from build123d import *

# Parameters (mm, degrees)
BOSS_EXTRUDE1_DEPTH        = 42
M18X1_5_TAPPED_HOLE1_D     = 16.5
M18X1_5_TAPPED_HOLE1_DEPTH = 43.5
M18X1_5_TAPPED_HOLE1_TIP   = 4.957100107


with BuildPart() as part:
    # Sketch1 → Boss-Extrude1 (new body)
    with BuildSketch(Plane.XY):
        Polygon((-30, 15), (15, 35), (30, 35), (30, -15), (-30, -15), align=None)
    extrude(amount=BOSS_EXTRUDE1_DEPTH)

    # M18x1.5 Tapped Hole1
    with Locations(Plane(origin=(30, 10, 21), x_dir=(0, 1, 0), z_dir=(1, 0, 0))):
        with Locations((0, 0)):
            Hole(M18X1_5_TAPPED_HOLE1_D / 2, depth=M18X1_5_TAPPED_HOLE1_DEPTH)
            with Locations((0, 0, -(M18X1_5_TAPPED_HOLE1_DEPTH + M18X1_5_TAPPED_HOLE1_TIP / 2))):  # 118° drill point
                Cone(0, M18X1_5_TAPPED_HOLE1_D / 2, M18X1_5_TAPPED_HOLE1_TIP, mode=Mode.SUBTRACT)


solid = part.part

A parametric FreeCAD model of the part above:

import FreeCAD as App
import Part
import Sketcher
from FreeCAD import Vector
Q = App.Units.Quantity


def add_polygon(sketch, points):
    """Adds a closed chain of lines whose ends are joined by coincident constraints."""
    first, n = sketch.GeometryCount, len(points)
    for a, b in zip(points, points[1:] + points[:1]):
        sketch.addGeometry(Part.LineSegment(App.Vector(*a, 0), App.Vector(*b, 0)), False)
    for i in range(n):
        sketch.addConstraint(Sketcher.Constraint("Coincident", first + i, 2, first + (i + 1) % n, 1))

doc = App.newDocument("Part")
body = doc.addObject("PartDesign::Body", "Body")

# Sketch on XY plane
sketch1 = doc.addObject("Sketcher::SketchObject", "Sketch")
body.addObject(sketch1)
sketch1.AttachmentSupport = (doc.XY_Plane, [""])
sketch1.MapMode = "FlatFace"
add_polygon(sketch1, [(15, 35), (-30, 15), (-30, -15), (30, -15), (30, 35)])  # lines 0-4
sketch1.addConstraint([
    Sketcher.Constraint("Vertical", 1),
    Sketcher.Constraint("Horizontal", 2),
    Sketcher.Constraint("Vertical", 3),
    Sketcher.Constraint("Horizontal", 4),
    Sketcher.Constraint("Symmetric", 0, 2, 2, 2, -1, 1),
    Sketcher.Constraint("DistanceX", 2, 1, 2, 2, Q("60 mm")),
    Sketcher.Constraint("DistanceX", 4, 2, 4, 1, Q("15 mm")),
    Sketcher.Constraint("DistanceY", 1, 2, 1, 1, Q("30 mm")),
    Sketcher.Constraint("DistanceY", 3, 1, 3, 2, Q("50 mm")),
])
pad1 = doc.addObject("PartDesign::Pad", "Pad")
body.addObject(pad1)
pad1.Profile = sketch1
pad1.Length = 42

# Sketch on YZ plane
sketch2 = doc.addObject("Sketcher::SketchObject", "Sketch001")
body.addObject(sketch2)
sketch2.AttachmentSupport = (doc.YZ_Plane, [""])
sketch2.MapMode = "FlatFace"
sketch2.AttachmentOffset = App.Placement(Vector(0, 0, 30), App.Rotation())
sketch2.addGeometry(Part.Circle(Vector(10, 21, 0), Vector(0, 0, 1), 8), False)
sketch2.addConstraint([
    Sketcher.Constraint("Diameter", 0, Q("16.5 mm")),
    Sketcher.Constraint("DistanceX", -1, 1, 0, 3, Q("10 mm")),
    Sketcher.Constraint("DistanceY", -1, 1, 0, 3, Q("21 mm")),
])
doc.recompute()
hole = doc.addObject("PartDesign::Hole", "Hole")
body.addObject(hole)
hole.Profile = sketch2
hole.ThreadType = "None"
hole.Diameter = 16.5
hole.DepthType = "Dimension"
hole.Depth = 43.5
hole.DrillPoint = "Angled"
hole.DrillPointAngle = 118

doc.recompute()
